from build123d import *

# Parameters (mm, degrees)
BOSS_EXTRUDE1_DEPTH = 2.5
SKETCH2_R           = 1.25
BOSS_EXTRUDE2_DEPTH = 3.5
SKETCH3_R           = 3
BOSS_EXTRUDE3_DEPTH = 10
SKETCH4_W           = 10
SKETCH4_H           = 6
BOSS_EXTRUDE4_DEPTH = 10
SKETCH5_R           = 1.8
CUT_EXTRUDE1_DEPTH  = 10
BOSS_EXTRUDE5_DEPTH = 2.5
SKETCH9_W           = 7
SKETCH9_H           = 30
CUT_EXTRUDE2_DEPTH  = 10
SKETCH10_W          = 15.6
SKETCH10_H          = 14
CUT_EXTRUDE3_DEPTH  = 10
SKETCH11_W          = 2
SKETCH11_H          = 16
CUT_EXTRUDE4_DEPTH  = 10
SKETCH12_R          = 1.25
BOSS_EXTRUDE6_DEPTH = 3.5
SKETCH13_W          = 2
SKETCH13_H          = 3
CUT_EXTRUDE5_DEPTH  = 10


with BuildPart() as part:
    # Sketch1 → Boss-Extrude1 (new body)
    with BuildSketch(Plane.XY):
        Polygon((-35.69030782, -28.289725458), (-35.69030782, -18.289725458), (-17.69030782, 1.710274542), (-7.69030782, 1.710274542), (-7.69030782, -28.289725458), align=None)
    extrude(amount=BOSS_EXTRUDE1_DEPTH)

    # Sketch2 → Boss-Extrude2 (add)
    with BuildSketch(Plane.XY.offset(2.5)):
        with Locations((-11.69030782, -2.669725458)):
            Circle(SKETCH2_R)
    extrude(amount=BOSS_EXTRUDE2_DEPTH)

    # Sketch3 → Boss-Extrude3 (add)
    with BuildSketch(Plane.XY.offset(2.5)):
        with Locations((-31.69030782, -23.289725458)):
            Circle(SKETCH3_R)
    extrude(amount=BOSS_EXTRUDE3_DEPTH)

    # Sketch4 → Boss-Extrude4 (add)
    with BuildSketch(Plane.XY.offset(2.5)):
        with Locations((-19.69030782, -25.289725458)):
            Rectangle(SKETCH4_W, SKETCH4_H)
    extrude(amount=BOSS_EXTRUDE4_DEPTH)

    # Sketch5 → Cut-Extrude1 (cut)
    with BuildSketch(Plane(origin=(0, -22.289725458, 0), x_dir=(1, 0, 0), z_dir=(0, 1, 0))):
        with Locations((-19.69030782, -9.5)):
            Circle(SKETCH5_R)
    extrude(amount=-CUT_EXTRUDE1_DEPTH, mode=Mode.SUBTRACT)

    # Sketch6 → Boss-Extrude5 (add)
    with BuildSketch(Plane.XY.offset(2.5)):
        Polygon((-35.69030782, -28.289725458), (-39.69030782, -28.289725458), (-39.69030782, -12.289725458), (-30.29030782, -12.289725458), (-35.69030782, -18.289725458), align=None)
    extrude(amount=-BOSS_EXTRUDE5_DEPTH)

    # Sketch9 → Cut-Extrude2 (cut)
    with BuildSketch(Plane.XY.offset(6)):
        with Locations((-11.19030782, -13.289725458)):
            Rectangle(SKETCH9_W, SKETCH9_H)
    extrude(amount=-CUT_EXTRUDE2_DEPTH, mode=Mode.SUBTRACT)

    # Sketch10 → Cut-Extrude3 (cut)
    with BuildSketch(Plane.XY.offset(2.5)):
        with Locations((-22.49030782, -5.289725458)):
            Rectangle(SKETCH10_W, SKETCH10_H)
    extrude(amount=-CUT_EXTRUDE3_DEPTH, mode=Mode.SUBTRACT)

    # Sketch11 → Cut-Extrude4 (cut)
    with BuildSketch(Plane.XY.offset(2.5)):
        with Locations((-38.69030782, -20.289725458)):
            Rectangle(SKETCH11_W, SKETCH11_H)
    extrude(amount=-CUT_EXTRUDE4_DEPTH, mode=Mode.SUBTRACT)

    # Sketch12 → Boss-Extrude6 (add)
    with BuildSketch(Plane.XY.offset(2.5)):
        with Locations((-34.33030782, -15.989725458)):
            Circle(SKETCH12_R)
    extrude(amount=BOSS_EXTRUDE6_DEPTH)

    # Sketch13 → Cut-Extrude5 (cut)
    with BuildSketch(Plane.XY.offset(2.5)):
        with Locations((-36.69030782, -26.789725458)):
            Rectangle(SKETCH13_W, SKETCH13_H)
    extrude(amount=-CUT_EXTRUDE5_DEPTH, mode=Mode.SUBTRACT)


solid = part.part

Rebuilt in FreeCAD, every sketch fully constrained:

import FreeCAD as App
import Part
import Sketcher
Q = App.Units.Quantity

doc = App.newDocument("Part")
body = doc.addObject("PartDesign::Body", "Body")

# Sketch on XY plane
sketch1 = doc.addObject("Sketcher::SketchObject", "Sketch")
body.addObject(sketch1)
sketch1.AttachmentSupport = (doc.XY_Plane, [""])
sketch1.MapMode = "FlatFace"
sketch1.addGeometry([
    Part.LineSegment(App.Vector(-35.690308, -18.289725, 0), App.Vector(-35.690308, -28.289725, 0)),  # 0
    Part.LineSegment(App.Vector(-35.690308, -28.289725, 0), App.Vector(-7.690308, -28.289725, 0)),  # 1
    Part.LineSegment(App.Vector(-7.690308, -28.289725, 0), App.Vector(-7.690308, 1.710275, 0)),  # 2
    Part.LineSegment(App.Vector(-7.690308, 1.710275, 0), App.Vector(-17.690308, 1.710275, 0)),  # 3
    Part.LineSegment(App.Vector(-17.690308, 1.710275, 0), App.Vector(-35.690308, -18.289725, 0)),  # 4
], False)
sketch1.addConstraint([
    Sketcher.Constraint("Coincident", 0, 2, 1, 1),
    Sketcher.Constraint("Coincident", 1, 2, 2, 1),
    Sketcher.Constraint("Coincident", 2, 2, 3, 1),
    Sketcher.Constraint("Coincident", 3, 2, 4, 1),
    Sketcher.Constraint("Coincident", 4, 2, 0, 1),
    Sketcher.Constraint("Vertical", 0),
    Sketcher.Constraint("Horizontal", 1),
    Sketcher.Constraint("Vertical", 2),
    Sketcher.Constraint("Horizontal", 3),
    Sketcher.Constraint("Equal", 3, 0),
    Sketcher.Constraint("DistanceX", 1, 1, 1, 2, Q("28 mm")),
    Sketcher.Constraint("DistanceX", 3, 2, 3, 1, Q("10 mm")),
    Sketcher.Constraint("DistanceY", 2, 1, 2, 2, Q("30 mm")),
    Sketcher.Constraint("DistanceX", 0, 2, -1, 1, Q("35.690308 mm")),
    Sketcher.Constraint("DistanceY", 0, 2, -1, 1, Q("28.289725 mm")),
])
pad1 = doc.addObject("PartDesign::Pad", "Pad")
body.addObject(pad1)
pad1.Profile = sketch1
pad1.Length = 2.5

# Sketch on XY plane
sketch2 = doc.addObject("Sketcher::SketchObject", "Sketch001")
body.addObject(sketch2)
sketch2.AttachmentSupport = (doc.XY_Plane, [""])
sketch2.MapMode = "FlatFace"
sketch2.AttachmentOffset = App.Placement(App.Vector(0, 0, 2.5), App.Rotation())
sketch2.addGeometry(Part.Circle(App.Vector(-11.690308, -2.669725, 0), App.Vector(0, 0, 1), 1.25), False)
sketch2.addConstraint([
    Sketcher.Constraint("Diameter", 0, Q("2.5 mm")),
    Sketcher.Constraint("DistanceX", 0, 3, -1, 1, Q("11.690308 mm")),
    Sketcher.Constraint("DistanceY", 0, 3, -1, 1, Q("2.669725 mm")),
])
pad2 = doc.addObject("PartDesign::Pad", "Pad001")
body.addObject(pad2)
pad2.Profile = sketch2
pad2.Length = 3.5

# Sketch on XY plane
sketch3 = doc.addObject("Sketcher::SketchObject", "Sketch002")
body.addObject(sketch3)
sketch3.AttachmentSupport = (doc.XY_Plane, [""])
sketch3.MapMode = "FlatFace"
sketch3.AttachmentOffset = App.Placement(App.Vector(0, 0, 2.5), App.Rotation())
sketch3.addGeometry(Part.Circle(App.Vector(-31.690308, -23.289725, 0), App.Vector(0, 0, 1), 3), False)
sketch3.addConstraint([
    Sketcher.Constraint("Diameter", 0, Q("6 mm")),
    Sketcher.Constraint("DistanceX", 0, 3, -1, 1, Q("31.690308 mm")),
    Sketcher.Constraint("DistanceY", 0, 3, -1, 1, Q("23.289725 mm")),
])
pad3 = doc.addObject("PartDesign::Pad", "Pad002")
body.addObject(pad3)
pad3.Profile = sketch3
pad3.Length = 10

# Sketch on XY plane
sketch4 = doc.addObject("Sketcher::SketchObject", "Sketch003")
body.addObject(sketch4)
sketch4.AttachmentSupport = (doc.XY_Plane, [""])
sketch4.MapMode = "FlatFace"
sketch4.AttachmentOffset = App.Placement(App.Vector(0, 0, 2.5), App.Rotation())
sketch4.addGeometry([
    Part.LineSegment(App.Vector(-24.690308, -22.289725, 0), App.Vector(-24.690308, -28.289725, 0)),
    Part.LineSegment(App.Vector(-24.690308, -28.289725, 0), App.Vector(-14.690308, -28.289725, 0)),
    Part.LineSegment(App.Vector(-14.690308, -28.289725, 0), App.Vector(-14.690308, -22.289725, 0)),
    Part.LineSegment(App.Vector(-14.690308, -22.289725, 0), App.Vector(-24.690308, -22.289725, 0)),
], False)
sketch4.addConstraint([
    Sketcher.Constraint("Coincident", 0, 2, 1, 1),
    Sketcher.Constraint("Coincident", 1, 2, 2, 1),
    Sketcher.Constraint("Coincident", 2, 2, 3, 1),
    Sketcher.Constraint("Coincident", 3, 2, 0, 1),
    Sketcher.Constraint("Vertical", 0),
    Sketcher.Constraint("Horizontal", 1),
    Sketcher.Constraint("Vertical", 2),
    Sketcher.Constraint("Horizontal", 3),
    Sketcher.Constraint("DistanceX", 1, 1, 1, 2, Q("10 mm")),
    Sketcher.Constraint("DistanceY", 0, 2, 0, 1, Q("6 mm")),
    Sketcher.Constraint("DistanceX", 0, 2, -1, 1, Q("24.690308 mm")),
    Sketcher.Constraint("DistanceY", 0, 2, -1, 1, Q("28.289725 mm")),
])
pad4 = doc.addObject("PartDesign::Pad", "Pad003")
body.addObject(pad4)
pad4.Profile = sketch4
pad4.Length = 10

# Sketch on XZ plane
sketch5 = doc.addObject("Sketcher::SketchObject", "Sketch004")
body.addObject(sketch5)
sketch5.AttachmentSupport = (doc.XZ_Plane, [""])
sketch5.MapMode = "FlatFace"
sketch5.AttachmentOffset = App.Placement(App.Vector(0, 0, 22.289725), App.Rotation())
sketch5.addGeometry(Part.Circle(App.Vector(-19.690308, 9.5, 0), App.Vector(0, 0, 1), 1.8), False)
sketch5.addConstraint([
    Sketcher.Constraint("Diameter", 0, Q("3.6 mm")),
    Sketcher.Constraint("DistanceY", -1, 1, 0, 3, Q("9.5 mm")),
    Sketcher.Constraint("DistanceX", 0, 3, -1, 1, Q("19.690308 mm")),
])
pocket1 = doc.addObject("PartDesign::Pocket", "Pocket")
body.addObject(pocket1)
pocket1.Profile = sketch5
pocket1.Length = 10
pocket1.Reversed = True

# Sketch on XY plane
sketch6 = doc.addObject("Sketcher::SketchObject", "Sketch005")
body.addObject(sketch6)
sketch6.AttachmentSupport = (doc.XY_Plane, [""])
sketch6.MapMode = "FlatFace"
sketch6.AttachmentOffset = App.Placement(App.Vector(0, 0, 2.5), App.Rotation())
sketch6.addGeometry([
    Part.LineSegment(App.Vector(-39.690308, -28.289725, 0), App.Vector(-35.690308, -28.289725, 0)),  # 0
    Part.LineSegment(App.Vector(-35.690308, -28.289725, 0), App.Vector(-35.690308, -18.289725, 0)),  # 1
    Part.LineSegment(App.Vector(-35.690308, -18.289725, 0), App.Vector(-30.290308, -12.289725, 0)),  # 2
    Part.LineSegment(App.Vector(-30.290308, -12.289725, 0), App.Vector(-39.690308, -12.289725, 0)),  # 3
    Part.LineSegment(App.Vector(-39.690308, -12.289725, 0), App.Vector(-39.690308, -28.289725, 0)),  # 4
], False)
sketch6.addConstraint([
    Sketcher.Constraint("Coincident", 0, 2, 1, 1),
    Sketcher.Constraint("Coincident", 1, 2, 2, 1),
    Sketcher.Constraint("Coincident", 2, 2, 3, 1),
    Sketcher.Constraint("Coincident", 3, 2, 4, 1),
    Sketcher.Constraint("Coincident", 4, 2, 0, 1),
    Sketcher.Constraint("Horizontal", 0),
    Sketcher.Constraint("Vertical", 1),
    Sketcher.Constraint("Horizontal", 3),
    Sketcher.Constraint("Vertical", 4),
    Sketcher.Constraint("DistanceX", 0, 1, 0, 2, Q("4 mm")),
    Sketcher.Constraint("DistanceY", 1, 1, 1, 2, Q("10 mm")),
    Sketcher.Constraint("DistanceY", 4, 2, 4, 1, Q("16 mm")),
    Sketcher.Constraint("DistanceX", 3, 2, 3, 1, Q("9.4 mm")),
    Sketcher.Constraint("DistanceX", 0, 2, -1, 1, Q("35.690308 mm")),
    Sketcher.Constraint("DistanceY", 0, 2, -1, 1, Q("28.289725 mm")),
])
pad5 = doc.addObject("PartDesign::Pad", "Pad004")
body.addObject(pad5)
pad5.Profile = sketch6
pad5.Length = 2.5
pad5.Reversed = True

# Sketch on XY plane
sketch7 = doc.addObject("Sketcher::SketchObject", "Sketch006")
body.addObject(sketch7)
sketch7.AttachmentSupport = (doc.XY_Plane, [""])
sketch7.MapMode = "FlatFace"
sketch7.AttachmentOffset = App.Placement(App.Vector(0, 0, 6), App.Rotation())
sketch7.addGeometry([
    Part.LineSegment(App.Vector(-14.690308, 1.710275, 0), App.Vector(-14.690308, -28.289725, 0)),
    Part.LineSegment(App.Vector(-14.690308, -28.289725, 0), App.Vector(-7.690308, -28.289725, 0)),
    Part.LineSegment(App.Vector(-7.690308, -28.289725, 0), App.Vector(-7.690308, 1.710275, 0)),
    Part.LineSegment(App.Vector(-7.690308, 1.710275, 0), App.Vector(-14.690308, 1.710275, 0)),
], False)
sketch7.addConstraint([
    Sketcher.Constraint("Coincident", 0, 2, 1, 1),
    Sketcher.Constraint("Coincident", 1, 2, 2, 1),
    Sketcher.Constraint("Coincident", 2, 2, 3, 1),
    Sketcher.Constraint("Coincident", 3, 2, 0, 1),
    Sketcher.Constraint("Vertical", 0),
    Sketcher.Constraint("Horizontal", 1),
    Sketcher.Constraint("Vertical", 2),
    Sketcher.Constraint("Horizontal", 3),
    Sketcher.Constraint("DistanceX", 1, 1, 1, 2, Q("7 mm")),
    Sketcher.Constraint("DistanceY", 0, 2, 0, 1, Q("30 mm")),
    Sketcher.Constraint("DistanceX", 0, 2, -1, 1, Q("14.690308 mm")),
    Sketcher.Constraint("DistanceY", 0, 2, -1, 1, Q("28.289725 mm")),
])
pocket2 = doc.addObject("PartDesign::Pocket", "Pocket001")
body.addObject(pocket2)
pocket2.Profile = sketch7
pocket2.Length = 10

# Sketch on XY plane
sketch8 = doc.addObject("Sketcher::SketchObject", "Sketch007")
body.addObject(sketch8)
sketch8.AttachmentSupport = (doc.XY_Plane, [""])
sketch8.MapMode = "FlatFace"
sketch8.AttachmentOffset = App.Placement(App.Vector(0, 0, 2.5), App.Rotation())
sketch8.addGeometry([
    Part.LineSegment(App.Vector(-30.290308, 1.710275, 0), App.Vector(-30.290308, -12.289725, 0)),
    Part.LineSegment(App.Vector(-30.290308, -12.289725, 0), App.Vector(-14.690308, -12.289725, 0)),
    Part.LineSegment(App.Vector(-14.690308, -12.289725, 0), App.Vector(-14.690308, 1.710275, 0)),
    Part.LineSegment(App.Vector(-14.690308, 1.710275, 0), App.Vector(-30.290308, 1.710275, 0)),
], False)
sketch8.addConstraint([
    Sketcher.Constraint("Coincident", 0, 2, 1, 1),
    Sketcher.Constraint("Coincident", 1, 2, 2, 1),
    Sketcher.Constraint("Coincident", 2, 2, 3, 1),
    Sketcher.Constraint("Coincident", 3, 2, 0, 1),
    Sketcher.Constraint("Vertical", 0),
    Sketcher.Constraint("Horizontal", 1),
    Sketcher.Constraint("Vertical", 2),
    Sketcher.Constraint("Horizontal", 3),
    Sketcher.Constraint("DistanceY", 0, 2, 0, 1, Q("14 mm")),
    Sketcher.Constraint("DistanceX", 1, 1, 1, 2, Q("15.6 mm")),
    Sketcher.Constraint("DistanceX", 0, 2, -1, 1, Q("30.290308 mm")),
    Sketcher.Constraint("DistanceY", 0, 2, -1, 1, Q("12.289725 mm")),
])
pocket3 = doc.addObject("PartDesign::Pocket", "Pocket002")
body.addObject(pocket3)
pocket3.Profile = sketch8
pocket3.Length = 10

# Sketch on XY plane
sketch9 = doc.addObject("Sketcher::SketchObject", "Sketch008")
body.addObject(sketch9)
sketch9.AttachmentSupport = (doc.XY_Plane, [""])
sketch9.MapMode = "FlatFace"
sketch9.AttachmentOffset = App.Placement(App.Vector(0, 0, 2.5), App.Rotation())
sketch9.addGeometry([
    Part.LineSegment(App.Vector(-39.690308, -12.289725, 0), App.Vector(-39.690308, -28.289725, 0)),
    Part.LineSegment(App.Vector(-39.690308, -28.289725, 0), App.Vector(-37.690308, -28.289725, 0)),
    Part.LineSegment(App.Vector(-37.690308, -28.289725, 0), App.Vector(-37.690308, -12.289725, 0)),
    Part.LineSegment(App.Vector(-37.690308, -12.289725, 0), App.Vector(-39.690308, -12.289725, 0)),
], False)
sketch9.addConstraint([
    Sketcher.Constraint("Coincident", 0, 2, 1, 1),
    Sketcher.Constraint("Coincident", 1, 2, 2, 1),
    Sketcher.Constraint("Coincident", 2, 2, 3, 1),
    Sketcher.Constraint("Coincident", 3, 2, 0, 1),
    Sketcher.Constraint("Vertical", 0),
    Sketcher.Constraint("Horizontal", 1),
    Sketcher.Constraint("Vertical", 2),
    Sketcher.Constraint("Horizontal", 3),
    Sketcher.Constraint("DistanceX", 1, 1, 1, 2, Q("2 mm")),
    Sketcher.Constraint("DistanceY", 0, 2, 0, 1, Q("16 mm")),
    Sketcher.Constraint("DistanceX", 0, 2, -1, 1, Q("39.690308 mm")),
    Sketcher.Constraint("DistanceY", 0, 2, -1, 1, Q("28.289725 mm")),
])
pocket4 = doc.addObject("PartDesign::Pocket", "Pocket003")
body.addObject(pocket4)
pocket4.Profile = sketch9
pocket4.Length = 10

# Sketch on XY plane
sketch10 = doc.addObject("Sketcher::SketchObject", "Sketch009")
body.addObject(sketch10)
sketch10.AttachmentSupport = (doc.XY_Plane, [""])
sketch10.MapMode = "FlatFace"
sketch10.AttachmentOffset = App.Placement(App.Vector(0, 0, 2.5), App.Rotation())
sketch10.addGeometry(Part.Circle(App.Vector(-34.330308, -15.989725, 0), App.Vector(0, 0, 1), 1.25), False)
sketch10.addConstraint([
    Sketcher.Constraint("Diameter", 0, Q("2.5 mm")),
    Sketcher.Constraint("DistanceX", 0, 3, -1, 1, Q("34.330308 mm")),
    Sketcher.Constraint("DistanceY", 0, 3, -1, 1, Q("15.989725 mm")),
])
pad6 = doc.addObject("PartDesign::Pad", "Pad005")
body.addObject(pad6)
pad6.Profile = sketch10
pad6.Length = 3.5

# Sketch on XY plane
sketch11 = doc.addObject("Sketcher::SketchObject", "Sketch010")
body.addObject(sketch11)
sketch11.AttachmentSupport = (doc.XY_Plane, [""])
sketch11.MapMode = "FlatFace"
sketch11.AttachmentOffset = App.Placement(App.Vector(0, 0, 2.5), App.Rotation())
sketch11.addGeometry([
    Part.LineSegment(App.Vector(-37.690308, -25.289725, 0), App.Vector(-37.690308, -28.289725, 0)),
    Part.LineSegment(App.Vector(-37.690308, -28.289725, 0), App.Vector(-35.690308, -28.289725, 0)),
    Part.LineSegment(App.Vector(-35.690308, -28.289725, 0), App.Vector(-35.690308, -25.289725, 0)),
    Part.LineSegment(App.Vector(-35.690308, -25.289725, 0), App.Vector(-37.690308, -25.289725, 0)),
], False)
sketch11.addConstraint([
    Sketcher.Constraint("Coincident", 0, 2, 1, 1),
    Sketcher.Constraint("Coincident", 1, 2, 2, 1),
    Sketcher.Constraint("Coincident", 2, 2, 3, 1),
    Sketcher.Constraint("Coincident", 3, 2, 0, 1),
    Sketcher.Constraint("Vertical", 0),
    Sketcher.Constraint("Horizontal", 1),
    Sketcher.Constraint("Vertical", 2),
    Sketcher.Constraint("Horizontal", 3),
    Sketcher.Constraint("DistanceX", 1, 1, 1, 2, Q("2 mm")),
    Sketcher.Constraint("DistanceY", 0, 2, 0, 1, Q("3 mm")),
    Sketcher.Constraint("DistanceX", 0, 2, -1, 1, Q("37.690308 mm")),
    Sketcher.Constraint("DistanceY", 0, 2, -1, 1, Q("28.289725 mm")),
])
pocket5 = doc.addObject("PartDesign::Pocket", "Pocket004")
body.addObject(pocket5)
pocket5.Profile = sketch11
pocket5.Length = 10

doc.recompute()
